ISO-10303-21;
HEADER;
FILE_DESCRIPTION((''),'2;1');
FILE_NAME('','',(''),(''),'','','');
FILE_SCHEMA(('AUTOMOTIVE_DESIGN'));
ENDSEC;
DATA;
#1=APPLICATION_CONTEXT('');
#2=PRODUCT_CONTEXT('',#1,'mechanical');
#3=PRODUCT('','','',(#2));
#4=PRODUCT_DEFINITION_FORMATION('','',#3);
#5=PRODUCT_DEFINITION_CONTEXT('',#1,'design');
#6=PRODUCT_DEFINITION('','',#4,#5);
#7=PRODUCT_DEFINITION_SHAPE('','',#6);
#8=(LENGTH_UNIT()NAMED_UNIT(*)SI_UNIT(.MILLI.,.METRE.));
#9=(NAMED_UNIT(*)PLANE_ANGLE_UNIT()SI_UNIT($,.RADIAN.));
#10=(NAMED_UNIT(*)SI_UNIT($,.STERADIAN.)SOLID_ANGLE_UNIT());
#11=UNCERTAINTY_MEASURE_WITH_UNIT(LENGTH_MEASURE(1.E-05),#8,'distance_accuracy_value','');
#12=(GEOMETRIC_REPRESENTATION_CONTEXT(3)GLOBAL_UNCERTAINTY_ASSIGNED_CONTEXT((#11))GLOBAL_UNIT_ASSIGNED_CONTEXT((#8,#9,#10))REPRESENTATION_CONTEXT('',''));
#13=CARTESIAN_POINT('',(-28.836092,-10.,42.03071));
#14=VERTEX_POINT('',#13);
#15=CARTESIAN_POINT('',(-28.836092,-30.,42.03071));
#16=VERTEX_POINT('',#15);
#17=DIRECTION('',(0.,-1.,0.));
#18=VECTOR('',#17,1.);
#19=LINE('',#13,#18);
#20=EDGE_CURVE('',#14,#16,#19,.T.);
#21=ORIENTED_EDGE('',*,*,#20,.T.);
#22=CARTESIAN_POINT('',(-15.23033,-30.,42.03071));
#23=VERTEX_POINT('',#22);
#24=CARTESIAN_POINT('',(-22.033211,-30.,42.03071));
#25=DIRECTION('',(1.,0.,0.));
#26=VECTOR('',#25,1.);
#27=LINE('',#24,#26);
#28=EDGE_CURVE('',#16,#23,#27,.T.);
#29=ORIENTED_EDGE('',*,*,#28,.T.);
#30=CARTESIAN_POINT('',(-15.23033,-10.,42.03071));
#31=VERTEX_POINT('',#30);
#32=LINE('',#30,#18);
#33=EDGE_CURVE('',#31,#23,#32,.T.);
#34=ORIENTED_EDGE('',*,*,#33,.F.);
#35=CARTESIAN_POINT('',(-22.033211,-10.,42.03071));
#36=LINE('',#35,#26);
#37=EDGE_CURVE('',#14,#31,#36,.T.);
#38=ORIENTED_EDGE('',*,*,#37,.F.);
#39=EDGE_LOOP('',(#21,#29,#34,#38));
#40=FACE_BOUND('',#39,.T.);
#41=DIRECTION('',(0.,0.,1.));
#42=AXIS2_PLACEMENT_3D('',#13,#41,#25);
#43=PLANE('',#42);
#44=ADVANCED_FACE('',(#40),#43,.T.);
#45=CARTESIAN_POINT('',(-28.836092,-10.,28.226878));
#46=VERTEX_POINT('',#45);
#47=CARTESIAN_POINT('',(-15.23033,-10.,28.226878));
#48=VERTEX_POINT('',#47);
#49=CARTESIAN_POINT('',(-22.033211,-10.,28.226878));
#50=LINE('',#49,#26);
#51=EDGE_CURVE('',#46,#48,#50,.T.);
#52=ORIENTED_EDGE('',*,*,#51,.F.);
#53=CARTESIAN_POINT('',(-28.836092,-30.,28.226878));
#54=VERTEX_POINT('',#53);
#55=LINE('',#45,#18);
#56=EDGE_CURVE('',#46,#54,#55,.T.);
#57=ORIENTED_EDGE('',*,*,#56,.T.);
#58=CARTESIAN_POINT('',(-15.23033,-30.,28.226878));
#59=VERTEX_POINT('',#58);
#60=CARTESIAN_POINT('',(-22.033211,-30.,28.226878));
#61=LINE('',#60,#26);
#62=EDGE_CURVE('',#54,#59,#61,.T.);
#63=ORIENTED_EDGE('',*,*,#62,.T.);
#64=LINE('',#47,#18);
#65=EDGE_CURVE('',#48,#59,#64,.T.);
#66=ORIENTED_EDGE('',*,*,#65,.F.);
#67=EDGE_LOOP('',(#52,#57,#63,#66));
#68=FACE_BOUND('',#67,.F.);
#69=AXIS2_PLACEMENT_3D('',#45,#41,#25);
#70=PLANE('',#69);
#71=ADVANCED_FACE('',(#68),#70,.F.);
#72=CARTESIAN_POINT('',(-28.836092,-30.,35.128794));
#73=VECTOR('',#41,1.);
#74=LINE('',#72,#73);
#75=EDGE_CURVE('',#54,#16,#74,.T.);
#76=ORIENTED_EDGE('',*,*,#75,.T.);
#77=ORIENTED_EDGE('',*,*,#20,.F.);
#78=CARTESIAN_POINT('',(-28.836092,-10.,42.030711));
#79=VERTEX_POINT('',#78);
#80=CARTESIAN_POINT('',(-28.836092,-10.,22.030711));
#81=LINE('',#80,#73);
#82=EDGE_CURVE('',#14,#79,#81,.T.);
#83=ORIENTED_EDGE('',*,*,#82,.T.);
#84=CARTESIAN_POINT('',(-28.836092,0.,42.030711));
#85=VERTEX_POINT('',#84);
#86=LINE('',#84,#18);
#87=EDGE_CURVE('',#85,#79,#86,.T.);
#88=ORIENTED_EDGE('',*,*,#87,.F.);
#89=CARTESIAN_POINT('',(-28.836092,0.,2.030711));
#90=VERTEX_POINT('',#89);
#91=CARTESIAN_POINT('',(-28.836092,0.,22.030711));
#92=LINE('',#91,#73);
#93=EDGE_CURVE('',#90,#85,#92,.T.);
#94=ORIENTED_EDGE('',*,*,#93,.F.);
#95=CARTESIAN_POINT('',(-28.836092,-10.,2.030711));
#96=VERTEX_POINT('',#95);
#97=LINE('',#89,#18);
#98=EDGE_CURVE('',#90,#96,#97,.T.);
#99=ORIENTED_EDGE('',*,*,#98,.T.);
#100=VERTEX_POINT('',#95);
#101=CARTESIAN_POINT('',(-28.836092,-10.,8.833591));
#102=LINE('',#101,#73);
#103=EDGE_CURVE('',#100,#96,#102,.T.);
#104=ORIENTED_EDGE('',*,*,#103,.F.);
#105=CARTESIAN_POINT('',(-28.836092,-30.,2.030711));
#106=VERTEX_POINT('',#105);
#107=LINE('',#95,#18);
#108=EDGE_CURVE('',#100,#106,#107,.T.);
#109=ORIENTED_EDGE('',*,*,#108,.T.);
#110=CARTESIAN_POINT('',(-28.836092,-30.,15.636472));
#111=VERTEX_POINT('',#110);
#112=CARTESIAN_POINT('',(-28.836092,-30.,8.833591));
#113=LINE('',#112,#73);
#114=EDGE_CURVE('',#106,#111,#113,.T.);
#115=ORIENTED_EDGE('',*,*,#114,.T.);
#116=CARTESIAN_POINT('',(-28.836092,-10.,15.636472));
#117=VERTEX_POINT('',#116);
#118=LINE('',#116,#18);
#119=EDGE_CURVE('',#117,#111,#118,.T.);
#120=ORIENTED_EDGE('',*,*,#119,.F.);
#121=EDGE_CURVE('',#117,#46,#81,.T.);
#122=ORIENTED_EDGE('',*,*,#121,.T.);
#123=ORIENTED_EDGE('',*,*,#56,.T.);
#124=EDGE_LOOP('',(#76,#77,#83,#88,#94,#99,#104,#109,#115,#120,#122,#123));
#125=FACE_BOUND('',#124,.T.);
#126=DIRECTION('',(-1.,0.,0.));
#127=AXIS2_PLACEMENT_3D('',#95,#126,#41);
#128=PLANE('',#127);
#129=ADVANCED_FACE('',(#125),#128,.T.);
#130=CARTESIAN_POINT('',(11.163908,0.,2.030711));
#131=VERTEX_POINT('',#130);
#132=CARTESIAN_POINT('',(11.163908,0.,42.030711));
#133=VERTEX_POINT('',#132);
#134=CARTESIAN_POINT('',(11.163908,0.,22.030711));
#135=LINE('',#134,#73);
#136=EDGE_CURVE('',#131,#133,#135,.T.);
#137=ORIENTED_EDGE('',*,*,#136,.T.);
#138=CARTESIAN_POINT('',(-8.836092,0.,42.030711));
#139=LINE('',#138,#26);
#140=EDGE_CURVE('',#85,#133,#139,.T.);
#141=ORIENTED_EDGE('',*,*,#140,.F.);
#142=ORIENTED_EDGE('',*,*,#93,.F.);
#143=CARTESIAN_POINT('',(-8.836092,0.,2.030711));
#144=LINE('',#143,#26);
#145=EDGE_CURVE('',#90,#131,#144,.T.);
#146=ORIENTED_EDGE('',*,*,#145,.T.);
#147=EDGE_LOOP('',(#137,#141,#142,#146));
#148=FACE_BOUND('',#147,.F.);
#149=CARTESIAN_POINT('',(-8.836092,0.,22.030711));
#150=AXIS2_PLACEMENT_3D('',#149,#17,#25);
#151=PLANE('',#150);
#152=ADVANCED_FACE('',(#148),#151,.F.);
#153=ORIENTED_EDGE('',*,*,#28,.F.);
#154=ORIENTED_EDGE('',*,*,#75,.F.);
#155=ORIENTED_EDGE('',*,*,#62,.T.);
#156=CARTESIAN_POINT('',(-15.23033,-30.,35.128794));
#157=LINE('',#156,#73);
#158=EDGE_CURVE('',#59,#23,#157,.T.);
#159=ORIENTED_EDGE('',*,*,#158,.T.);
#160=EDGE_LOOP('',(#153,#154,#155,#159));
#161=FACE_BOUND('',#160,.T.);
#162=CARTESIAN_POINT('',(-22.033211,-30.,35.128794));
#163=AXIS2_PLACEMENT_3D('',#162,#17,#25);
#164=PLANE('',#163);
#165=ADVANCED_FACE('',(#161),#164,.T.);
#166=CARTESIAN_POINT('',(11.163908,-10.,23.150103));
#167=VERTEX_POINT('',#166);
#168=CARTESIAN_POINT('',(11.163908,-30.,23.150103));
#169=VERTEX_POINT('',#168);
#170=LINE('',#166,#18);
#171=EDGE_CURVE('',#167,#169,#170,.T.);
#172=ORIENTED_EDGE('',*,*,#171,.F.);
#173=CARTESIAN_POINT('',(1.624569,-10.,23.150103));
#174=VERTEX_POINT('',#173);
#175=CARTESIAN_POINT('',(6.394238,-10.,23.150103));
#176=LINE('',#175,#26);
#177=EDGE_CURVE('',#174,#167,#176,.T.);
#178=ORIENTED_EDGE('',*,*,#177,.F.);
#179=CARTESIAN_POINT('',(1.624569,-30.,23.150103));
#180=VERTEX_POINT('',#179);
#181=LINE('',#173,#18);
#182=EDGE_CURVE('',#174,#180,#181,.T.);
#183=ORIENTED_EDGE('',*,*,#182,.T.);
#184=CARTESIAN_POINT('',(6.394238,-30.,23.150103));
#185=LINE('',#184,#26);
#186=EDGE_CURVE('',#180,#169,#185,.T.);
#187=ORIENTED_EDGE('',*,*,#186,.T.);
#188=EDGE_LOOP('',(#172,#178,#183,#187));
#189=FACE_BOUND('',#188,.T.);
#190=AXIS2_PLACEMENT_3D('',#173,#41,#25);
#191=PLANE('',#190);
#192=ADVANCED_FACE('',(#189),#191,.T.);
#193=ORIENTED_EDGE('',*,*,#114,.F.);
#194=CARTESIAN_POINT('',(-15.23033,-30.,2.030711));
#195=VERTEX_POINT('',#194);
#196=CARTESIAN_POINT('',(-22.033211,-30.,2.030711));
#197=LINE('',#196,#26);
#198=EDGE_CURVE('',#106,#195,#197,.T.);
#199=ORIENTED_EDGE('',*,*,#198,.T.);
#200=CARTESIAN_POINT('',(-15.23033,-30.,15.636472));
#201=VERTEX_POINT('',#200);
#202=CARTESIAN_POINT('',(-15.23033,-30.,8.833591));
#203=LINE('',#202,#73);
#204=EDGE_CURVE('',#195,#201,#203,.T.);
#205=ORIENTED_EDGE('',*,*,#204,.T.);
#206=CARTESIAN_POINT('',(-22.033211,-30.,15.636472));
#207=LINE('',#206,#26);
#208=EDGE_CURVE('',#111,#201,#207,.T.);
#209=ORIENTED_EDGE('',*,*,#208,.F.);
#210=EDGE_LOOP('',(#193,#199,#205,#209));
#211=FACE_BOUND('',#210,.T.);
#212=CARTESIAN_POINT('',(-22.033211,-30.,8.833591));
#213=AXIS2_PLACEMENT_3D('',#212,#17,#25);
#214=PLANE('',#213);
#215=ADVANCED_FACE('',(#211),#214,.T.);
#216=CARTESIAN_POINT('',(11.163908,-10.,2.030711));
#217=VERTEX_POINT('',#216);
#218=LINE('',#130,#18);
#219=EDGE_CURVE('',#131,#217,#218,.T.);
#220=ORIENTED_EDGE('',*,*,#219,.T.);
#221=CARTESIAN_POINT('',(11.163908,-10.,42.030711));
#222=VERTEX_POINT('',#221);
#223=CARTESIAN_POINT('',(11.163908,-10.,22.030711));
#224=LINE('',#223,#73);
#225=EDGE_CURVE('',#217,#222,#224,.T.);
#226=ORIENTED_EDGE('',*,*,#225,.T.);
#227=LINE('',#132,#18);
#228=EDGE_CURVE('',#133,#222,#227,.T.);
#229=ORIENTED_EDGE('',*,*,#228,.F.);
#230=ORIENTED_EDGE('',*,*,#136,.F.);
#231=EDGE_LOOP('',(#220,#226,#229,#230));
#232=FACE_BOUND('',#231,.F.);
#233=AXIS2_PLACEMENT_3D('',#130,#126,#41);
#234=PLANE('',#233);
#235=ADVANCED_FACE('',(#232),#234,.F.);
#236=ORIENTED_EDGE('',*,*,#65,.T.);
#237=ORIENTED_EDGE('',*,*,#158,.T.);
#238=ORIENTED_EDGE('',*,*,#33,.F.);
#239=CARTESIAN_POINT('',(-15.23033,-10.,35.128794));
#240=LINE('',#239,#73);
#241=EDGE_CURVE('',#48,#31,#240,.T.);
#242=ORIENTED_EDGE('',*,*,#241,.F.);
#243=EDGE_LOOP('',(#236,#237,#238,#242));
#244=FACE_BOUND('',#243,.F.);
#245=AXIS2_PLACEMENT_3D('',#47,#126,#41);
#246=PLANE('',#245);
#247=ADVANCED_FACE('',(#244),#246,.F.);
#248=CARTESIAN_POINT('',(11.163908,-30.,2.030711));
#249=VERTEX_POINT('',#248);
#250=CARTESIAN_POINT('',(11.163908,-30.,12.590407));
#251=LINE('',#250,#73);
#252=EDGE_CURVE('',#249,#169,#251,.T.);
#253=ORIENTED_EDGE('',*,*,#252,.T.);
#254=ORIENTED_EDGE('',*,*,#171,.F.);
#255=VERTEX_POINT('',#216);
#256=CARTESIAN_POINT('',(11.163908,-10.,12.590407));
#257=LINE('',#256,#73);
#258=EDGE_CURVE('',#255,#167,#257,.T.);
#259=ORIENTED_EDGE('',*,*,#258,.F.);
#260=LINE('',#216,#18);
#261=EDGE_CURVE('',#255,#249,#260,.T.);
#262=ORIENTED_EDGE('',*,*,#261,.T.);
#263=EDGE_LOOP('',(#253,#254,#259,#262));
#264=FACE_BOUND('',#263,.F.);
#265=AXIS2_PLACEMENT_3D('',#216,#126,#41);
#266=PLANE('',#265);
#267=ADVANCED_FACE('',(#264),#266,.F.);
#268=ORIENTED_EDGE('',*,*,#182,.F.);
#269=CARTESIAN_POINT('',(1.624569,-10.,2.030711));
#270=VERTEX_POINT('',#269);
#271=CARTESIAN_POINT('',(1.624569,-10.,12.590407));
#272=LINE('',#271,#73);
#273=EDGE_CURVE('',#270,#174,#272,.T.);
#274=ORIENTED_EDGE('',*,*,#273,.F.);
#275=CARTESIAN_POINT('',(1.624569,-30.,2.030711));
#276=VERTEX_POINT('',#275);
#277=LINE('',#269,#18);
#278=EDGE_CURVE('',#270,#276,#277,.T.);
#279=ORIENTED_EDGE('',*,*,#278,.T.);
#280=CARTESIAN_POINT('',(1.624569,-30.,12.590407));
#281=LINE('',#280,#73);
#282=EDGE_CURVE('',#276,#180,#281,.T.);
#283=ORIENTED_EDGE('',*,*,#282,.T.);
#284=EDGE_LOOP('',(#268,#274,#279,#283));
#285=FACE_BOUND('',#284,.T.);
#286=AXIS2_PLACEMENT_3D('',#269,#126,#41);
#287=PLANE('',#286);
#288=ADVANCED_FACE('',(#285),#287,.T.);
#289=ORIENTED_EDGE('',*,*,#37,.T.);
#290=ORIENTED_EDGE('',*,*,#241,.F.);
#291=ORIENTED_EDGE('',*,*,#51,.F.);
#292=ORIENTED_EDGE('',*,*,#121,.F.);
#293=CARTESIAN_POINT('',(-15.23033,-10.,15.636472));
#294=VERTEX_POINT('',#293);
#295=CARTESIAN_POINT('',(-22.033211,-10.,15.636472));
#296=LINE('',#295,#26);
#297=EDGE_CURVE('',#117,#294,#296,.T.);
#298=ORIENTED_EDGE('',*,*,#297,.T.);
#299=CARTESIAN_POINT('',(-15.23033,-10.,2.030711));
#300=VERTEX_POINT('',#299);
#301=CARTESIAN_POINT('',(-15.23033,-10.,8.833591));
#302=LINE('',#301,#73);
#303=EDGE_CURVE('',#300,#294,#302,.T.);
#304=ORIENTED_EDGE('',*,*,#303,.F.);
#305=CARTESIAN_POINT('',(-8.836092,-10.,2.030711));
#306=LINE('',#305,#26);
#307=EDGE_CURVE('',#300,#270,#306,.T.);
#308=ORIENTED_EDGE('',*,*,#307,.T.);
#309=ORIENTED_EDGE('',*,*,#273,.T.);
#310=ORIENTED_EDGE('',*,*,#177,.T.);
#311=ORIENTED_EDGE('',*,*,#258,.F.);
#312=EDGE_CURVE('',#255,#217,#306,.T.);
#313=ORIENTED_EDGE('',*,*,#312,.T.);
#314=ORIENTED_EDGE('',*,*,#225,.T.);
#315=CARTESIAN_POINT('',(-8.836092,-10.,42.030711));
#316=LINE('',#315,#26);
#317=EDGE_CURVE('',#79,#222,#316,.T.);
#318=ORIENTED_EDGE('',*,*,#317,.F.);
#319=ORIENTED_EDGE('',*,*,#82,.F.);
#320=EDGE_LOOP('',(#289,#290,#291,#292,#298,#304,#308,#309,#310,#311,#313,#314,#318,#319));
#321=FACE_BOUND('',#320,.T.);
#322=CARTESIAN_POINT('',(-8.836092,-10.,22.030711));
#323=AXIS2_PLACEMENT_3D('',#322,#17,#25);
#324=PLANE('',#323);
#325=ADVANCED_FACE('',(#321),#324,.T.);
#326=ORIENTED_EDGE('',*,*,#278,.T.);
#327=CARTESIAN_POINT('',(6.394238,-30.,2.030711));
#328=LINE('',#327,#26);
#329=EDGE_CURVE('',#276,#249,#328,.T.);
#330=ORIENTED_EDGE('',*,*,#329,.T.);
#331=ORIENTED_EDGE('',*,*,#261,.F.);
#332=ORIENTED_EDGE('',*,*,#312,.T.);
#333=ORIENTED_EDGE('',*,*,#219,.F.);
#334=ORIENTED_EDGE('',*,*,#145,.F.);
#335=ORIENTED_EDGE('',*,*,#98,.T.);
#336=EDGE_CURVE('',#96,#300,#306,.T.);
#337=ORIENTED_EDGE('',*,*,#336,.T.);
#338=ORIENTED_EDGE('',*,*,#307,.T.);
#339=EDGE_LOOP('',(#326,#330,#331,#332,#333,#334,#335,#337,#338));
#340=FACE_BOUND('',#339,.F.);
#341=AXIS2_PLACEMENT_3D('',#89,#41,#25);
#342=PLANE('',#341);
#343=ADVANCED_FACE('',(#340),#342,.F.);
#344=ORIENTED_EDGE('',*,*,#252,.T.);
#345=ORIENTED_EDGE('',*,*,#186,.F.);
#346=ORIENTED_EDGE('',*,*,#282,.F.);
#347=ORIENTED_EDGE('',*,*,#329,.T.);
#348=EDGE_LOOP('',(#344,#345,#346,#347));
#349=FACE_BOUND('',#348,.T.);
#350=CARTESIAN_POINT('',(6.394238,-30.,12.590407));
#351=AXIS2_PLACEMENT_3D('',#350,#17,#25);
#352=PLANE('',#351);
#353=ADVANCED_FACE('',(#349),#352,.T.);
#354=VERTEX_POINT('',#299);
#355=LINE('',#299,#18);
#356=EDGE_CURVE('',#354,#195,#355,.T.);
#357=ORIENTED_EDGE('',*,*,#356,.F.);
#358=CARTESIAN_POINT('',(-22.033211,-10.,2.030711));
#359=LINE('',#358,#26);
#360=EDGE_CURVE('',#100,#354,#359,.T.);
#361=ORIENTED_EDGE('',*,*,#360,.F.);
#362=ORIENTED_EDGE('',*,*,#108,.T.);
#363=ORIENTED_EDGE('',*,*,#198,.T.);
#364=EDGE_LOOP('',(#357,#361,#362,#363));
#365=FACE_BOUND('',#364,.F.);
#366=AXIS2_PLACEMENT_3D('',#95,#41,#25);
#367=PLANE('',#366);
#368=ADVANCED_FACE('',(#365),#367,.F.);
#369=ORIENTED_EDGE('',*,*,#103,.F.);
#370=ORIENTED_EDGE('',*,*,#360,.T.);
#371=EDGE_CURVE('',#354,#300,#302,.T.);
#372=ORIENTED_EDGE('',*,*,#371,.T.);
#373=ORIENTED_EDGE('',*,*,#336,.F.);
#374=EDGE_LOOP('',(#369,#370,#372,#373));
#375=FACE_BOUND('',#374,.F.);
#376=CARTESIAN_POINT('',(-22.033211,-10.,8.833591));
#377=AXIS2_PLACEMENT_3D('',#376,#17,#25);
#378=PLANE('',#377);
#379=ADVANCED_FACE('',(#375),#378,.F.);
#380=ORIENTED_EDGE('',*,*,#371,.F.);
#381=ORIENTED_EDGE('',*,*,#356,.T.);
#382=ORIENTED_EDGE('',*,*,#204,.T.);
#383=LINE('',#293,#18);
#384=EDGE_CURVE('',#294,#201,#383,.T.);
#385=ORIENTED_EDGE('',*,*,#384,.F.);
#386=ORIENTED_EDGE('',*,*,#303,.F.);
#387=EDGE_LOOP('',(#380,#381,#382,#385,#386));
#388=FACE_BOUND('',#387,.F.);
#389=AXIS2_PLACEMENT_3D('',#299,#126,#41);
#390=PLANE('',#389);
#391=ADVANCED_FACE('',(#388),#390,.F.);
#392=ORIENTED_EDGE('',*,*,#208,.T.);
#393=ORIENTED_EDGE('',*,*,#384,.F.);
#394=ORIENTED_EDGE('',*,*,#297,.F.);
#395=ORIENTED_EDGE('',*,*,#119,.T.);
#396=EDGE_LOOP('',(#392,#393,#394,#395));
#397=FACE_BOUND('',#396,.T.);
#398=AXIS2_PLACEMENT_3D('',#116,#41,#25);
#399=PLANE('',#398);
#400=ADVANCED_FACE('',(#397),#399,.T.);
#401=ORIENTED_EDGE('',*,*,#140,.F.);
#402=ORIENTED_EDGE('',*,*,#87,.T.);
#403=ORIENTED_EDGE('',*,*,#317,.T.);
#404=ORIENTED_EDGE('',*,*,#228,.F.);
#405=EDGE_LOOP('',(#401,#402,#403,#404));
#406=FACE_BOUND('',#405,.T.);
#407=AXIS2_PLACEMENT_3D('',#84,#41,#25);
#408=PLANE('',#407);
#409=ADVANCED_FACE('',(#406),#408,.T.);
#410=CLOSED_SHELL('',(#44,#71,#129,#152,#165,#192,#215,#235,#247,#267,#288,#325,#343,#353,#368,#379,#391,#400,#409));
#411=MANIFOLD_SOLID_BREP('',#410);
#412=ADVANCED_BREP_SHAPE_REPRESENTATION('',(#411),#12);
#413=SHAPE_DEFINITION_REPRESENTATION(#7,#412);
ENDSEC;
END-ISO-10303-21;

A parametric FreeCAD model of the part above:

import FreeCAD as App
import Part
import Sketcher
from FreeCAD import Vector

doc = App.newDocument("Part")
body = doc.addObject("PartDesign::Body", "Body")

sketch1 = body.newObject("Sketcher::SketchObject", "Sketch")
sketch1.AttachmentSupport = (doc.getObject("XZ_Plane"), [""])
sketch1.MapMode = "FlatFace"
sketch1.addGeometry([
    Part.LineSegment(Vector(-29, 42, 0), Vector(-29, 2, 0)),
    Part.LineSegment(Vector(-29, 2, 0), Vector(11, 2, 0)),
    Part.LineSegment(Vector(11, 2, 0), Vector(11, 42, 0)),
    Part.LineSegment(Vector(11, 42, 0), Vector(-29, 42, 0)),
], False)
sketch1.addConstraint([
    Sketcher.Constraint("Coincident", 0, 2, 1, 1),
    Sketcher.Constraint("Coincident", 1, 2, 2, 1),
    Sketcher.Constraint("Coincident", 2, 2, 3, 1),
    Sketcher.Constraint("Coincident", 3, 2, 0, 1),
    Sketcher.Constraint("Vertical", 0),
    Sketcher.Constraint("Horizontal", 1),
    Sketcher.Constraint("Vertical", 2),
    Sketcher.Constraint("Horizontal", 3),
    Sketcher.Constraint("Equal", 3, 0),
    Sketcher.Constraint("DistanceX", 1, 1, 1, 2, 40.0),
    Sketcher.Constraint("DistanceY", -1, 1, 0, 2, 2.030711),
    Sketcher.Constraint("DistanceX", 0, 2, -1, 1, 28.836092),
])
pad1 = body.newObject("PartDesign::Pad", "Pad")
pad1.Profile = sketch1
pad1.Length = 10

sketch2 = body.newObject("Sketcher::SketchObject", "Sketch001")
sketch2.AttachmentSupport = (doc.getObject("XZ_Plane"), [""])
sketch2.MapMode = "FlatFace"
sketch2.AttachmentOffset = App.Placement(Vector(0, 0, 10), App.Rotation())
sketch2.addGeometry([
    Part.LineSegment(Vector(-29, 42, 0), Vector(-29, 28, 0)),
    Part.LineSegment(Vector(-29, 28, 0), Vector(-15, 28, 0)),
    Part.LineSegment(Vector(-15, 28, 0), Vector(-15, 42, 0)),
    Part.LineSegment(Vector(-15, 42, 0), Vector(-29, 42, 0)),
    Part.LineSegment(Vector(-29, 16, 0), Vector(-29, 2, 0)),
    Part.LineSegment(Vector(-29, 2, 0), Vector(-15, 2, 0)),
    Part.LineSegment(Vector(-15, 2, 0), Vector(-15, 16, 0)),
    Part.LineSegment(Vector(-15, 16, 0), Vector(-29, 16, 0)),
    Part.LineSegment(Vector(2, 23, 0), Vector(2, 2, 0)),
    Part.LineSegment(Vector(2, 2, 0), Vector(11, 2, 0)),
    Part.LineSegment(Vector(11, 2, 0), Vector(11, 23, 0)),
    Part.LineSegment(Vector(11, 23, 0), Vector(2, 23, 0)),
], False)
sketch2.addConstraint([
    Sketcher.Constraint("Coincident", 0, 2, 1, 1),
    Sketcher.Constraint("Coincident", 1, 2, 2, 1),
    Sketcher.Constraint("Coincident", 2, 2, 3, 1),
    Sketcher.Constraint("Coincident", 3, 2, 0, 1),
    Sketcher.Constraint("Coincident", 4, 2, 5, 1),
    Sketcher.Constraint("Coincident", 5, 2, 6, 1),
    Sketcher.Constraint("Coincident", 6, 2, 7, 1),
    Sketcher.Constraint("Coincident", 7, 2, 4, 1),
    Sketcher.Constraint("Coincident", 8, 2, 9, 1),
    Sketcher.Constraint("Coincident", 9, 2, 10, 1),
    Sketcher.Constraint("Coincident", 10, 2, 11, 1),
    Sketcher.Constraint("Coincident", 11, 2, 8, 1),
    Sketcher.Constraint("Vertical", 0),
    Sketcher.Constraint("Horizontal", 1),
    Sketcher.Constraint("Vertical", 2),
    Sketcher.Constraint("Horizontal", 3),
    Sketcher.Constraint("Vertical", 4),
    Sketcher.Constraint("Horizontal", 5),
    Sketcher.Constraint("Vertical", 6),
    Sketcher.Constraint("Horizontal", 7),
    Sketcher.Constraint("Vertical", 8),
    Sketcher.Constraint("Horizontal", 9),
    Sketcher.Constraint("Vertical", 10),
    Sketcher.Constraint("Horizontal", 11),
    Sketcher.Constraint("Horizontal", 5, 2, 8, 2),
    Sketcher.Constraint("Vertical", 3, 2, 4, 2),
    Sketcher.Constraint("Vertical", 2, 2, 5, 2),
    Sketcher.Constraint("Equal", 7, 4),
    Sketcher.Constraint("DistanceY", 4, 2, 3, 2, 40.0),
    Sketcher.Constraint("DistanceX", 4, 2, 9, 2, 40.0),
    Sketcher.Constraint("DistanceX", 9, 1, 9, 2, 9.539339),
    Sketcher.Constraint("DistanceY", 4, 2, 4, 1, 13.605761),
    Sketcher.Constraint("DistanceY", 0, 2, 0, 1, 13.803833),
    Sketcher.Constraint("DistanceY", 8, 2, 8, 1, 21.119392),
    Sketcher.Constraint("DistanceX", 1, 2, -1, 1, 15.23033),
    Sketcher.Constraint("DistanceY", -1, 1, 2, 2, 42.03071),
])
pad2 = body.newObject("PartDesign::Pad", "Pad001")
pad2.Profile = sketch2
pad2.Length = 20

doc.recompute()
